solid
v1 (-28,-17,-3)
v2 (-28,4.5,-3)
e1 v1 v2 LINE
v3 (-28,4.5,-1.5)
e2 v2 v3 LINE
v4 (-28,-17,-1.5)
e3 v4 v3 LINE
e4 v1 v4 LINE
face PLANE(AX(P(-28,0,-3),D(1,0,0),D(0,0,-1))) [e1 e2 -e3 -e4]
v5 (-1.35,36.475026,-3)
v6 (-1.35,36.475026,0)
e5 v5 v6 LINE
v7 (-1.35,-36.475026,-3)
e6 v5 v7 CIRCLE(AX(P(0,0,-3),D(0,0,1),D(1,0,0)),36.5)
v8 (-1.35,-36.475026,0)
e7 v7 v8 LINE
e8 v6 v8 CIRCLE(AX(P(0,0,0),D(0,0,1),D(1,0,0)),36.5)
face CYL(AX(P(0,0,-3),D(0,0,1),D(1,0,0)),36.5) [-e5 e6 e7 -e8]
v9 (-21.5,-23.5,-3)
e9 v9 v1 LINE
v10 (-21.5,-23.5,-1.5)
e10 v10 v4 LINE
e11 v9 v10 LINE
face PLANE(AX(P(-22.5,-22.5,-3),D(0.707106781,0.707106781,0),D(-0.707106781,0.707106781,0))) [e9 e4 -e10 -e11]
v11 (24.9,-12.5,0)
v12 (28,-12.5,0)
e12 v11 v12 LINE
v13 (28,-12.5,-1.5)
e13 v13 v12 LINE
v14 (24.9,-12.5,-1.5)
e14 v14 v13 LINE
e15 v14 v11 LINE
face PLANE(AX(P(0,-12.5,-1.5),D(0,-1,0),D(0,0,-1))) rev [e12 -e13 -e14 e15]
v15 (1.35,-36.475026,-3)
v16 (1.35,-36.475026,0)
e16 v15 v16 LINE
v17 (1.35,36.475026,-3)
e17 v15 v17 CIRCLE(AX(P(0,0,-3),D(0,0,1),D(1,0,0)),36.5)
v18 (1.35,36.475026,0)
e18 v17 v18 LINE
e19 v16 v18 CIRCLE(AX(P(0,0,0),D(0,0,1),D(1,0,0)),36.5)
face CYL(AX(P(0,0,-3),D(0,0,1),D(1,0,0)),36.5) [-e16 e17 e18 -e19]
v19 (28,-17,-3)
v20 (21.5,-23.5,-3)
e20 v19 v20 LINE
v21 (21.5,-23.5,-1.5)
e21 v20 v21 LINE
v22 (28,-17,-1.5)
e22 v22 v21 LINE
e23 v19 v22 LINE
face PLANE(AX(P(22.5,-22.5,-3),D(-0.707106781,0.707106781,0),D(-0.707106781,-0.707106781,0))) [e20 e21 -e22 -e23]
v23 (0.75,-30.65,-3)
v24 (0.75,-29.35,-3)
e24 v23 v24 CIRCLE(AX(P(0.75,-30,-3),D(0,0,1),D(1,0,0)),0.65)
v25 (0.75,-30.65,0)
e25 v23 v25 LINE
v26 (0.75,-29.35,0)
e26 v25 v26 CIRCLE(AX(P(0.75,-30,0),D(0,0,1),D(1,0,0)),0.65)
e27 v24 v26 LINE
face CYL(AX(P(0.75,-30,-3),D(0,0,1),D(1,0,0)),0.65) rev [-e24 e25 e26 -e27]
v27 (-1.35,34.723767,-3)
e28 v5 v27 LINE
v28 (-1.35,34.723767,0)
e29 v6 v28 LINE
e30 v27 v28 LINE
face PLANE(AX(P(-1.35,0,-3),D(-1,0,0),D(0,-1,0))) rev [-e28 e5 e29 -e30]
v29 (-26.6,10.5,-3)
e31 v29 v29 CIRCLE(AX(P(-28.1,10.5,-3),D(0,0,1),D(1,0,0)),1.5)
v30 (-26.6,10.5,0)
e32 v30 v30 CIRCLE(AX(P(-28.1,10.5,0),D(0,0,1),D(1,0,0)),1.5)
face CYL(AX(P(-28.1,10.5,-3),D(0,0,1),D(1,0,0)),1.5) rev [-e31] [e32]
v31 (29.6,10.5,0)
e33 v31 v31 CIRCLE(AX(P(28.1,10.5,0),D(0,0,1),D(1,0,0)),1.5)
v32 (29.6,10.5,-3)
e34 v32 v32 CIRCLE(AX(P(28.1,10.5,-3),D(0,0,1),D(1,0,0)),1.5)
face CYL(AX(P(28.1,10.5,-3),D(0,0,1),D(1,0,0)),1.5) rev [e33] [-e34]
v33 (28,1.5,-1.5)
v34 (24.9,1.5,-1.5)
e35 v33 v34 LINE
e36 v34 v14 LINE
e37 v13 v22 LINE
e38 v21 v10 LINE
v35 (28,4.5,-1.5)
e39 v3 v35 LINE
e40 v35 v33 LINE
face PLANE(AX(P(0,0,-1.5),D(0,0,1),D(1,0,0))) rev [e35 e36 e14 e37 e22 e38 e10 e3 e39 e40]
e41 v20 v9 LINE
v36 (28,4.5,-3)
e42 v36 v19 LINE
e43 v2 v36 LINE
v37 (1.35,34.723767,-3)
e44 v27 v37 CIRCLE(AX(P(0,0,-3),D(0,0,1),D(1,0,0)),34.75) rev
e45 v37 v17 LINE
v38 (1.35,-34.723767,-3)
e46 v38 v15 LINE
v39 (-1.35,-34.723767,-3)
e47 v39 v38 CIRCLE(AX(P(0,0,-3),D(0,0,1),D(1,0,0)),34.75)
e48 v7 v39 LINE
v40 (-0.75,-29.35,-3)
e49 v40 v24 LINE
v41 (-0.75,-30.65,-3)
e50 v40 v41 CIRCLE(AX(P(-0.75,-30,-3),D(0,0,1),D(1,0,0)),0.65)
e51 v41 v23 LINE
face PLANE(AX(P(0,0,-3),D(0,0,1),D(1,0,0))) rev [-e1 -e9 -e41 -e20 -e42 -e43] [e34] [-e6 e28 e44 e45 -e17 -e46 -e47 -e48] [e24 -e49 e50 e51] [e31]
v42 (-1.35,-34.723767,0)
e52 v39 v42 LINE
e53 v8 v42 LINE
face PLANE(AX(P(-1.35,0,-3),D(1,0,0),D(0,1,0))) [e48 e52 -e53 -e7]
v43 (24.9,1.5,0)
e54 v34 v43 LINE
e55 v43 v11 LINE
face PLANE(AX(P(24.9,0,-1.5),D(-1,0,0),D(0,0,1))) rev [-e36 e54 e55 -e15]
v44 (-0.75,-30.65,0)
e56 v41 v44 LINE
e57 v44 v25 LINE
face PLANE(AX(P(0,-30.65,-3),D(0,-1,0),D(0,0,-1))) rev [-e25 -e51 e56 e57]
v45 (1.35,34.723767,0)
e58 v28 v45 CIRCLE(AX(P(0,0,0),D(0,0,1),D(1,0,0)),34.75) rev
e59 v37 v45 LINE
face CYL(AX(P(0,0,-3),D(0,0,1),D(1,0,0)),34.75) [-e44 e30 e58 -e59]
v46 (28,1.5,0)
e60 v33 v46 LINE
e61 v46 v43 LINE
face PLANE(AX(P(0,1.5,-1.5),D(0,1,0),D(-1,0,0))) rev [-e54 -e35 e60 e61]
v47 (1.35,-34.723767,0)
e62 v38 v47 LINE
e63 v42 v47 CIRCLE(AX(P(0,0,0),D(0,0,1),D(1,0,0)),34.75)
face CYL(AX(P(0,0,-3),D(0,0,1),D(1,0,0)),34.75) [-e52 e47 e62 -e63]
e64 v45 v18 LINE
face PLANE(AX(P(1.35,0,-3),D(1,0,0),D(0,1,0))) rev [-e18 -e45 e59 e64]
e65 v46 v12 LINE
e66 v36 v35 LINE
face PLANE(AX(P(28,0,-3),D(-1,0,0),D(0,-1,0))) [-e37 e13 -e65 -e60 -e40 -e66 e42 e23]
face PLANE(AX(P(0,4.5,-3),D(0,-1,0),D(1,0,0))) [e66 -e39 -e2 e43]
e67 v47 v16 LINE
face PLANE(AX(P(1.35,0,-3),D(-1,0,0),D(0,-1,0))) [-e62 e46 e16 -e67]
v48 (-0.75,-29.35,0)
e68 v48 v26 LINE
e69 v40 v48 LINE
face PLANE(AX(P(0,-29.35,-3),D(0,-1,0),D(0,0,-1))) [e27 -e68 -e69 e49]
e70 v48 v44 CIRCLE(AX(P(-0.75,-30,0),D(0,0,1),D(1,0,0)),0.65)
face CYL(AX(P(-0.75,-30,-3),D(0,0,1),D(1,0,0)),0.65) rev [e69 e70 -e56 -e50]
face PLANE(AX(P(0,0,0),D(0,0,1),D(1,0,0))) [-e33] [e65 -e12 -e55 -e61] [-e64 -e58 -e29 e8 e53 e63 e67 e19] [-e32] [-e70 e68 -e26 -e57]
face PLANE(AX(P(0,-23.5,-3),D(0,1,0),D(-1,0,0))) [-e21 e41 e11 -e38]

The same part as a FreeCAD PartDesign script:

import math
import FreeCAD as App
import Part
import Sketcher

V = App.Vector

doc = App.newDocument("Part")
body = doc.addObject("PartDesign::Body", "Body")

sketch1 = doc.addObject("Sketcher::SketchObject", "Sketch")
body.addObject(sketch1)
sketch1.AttachmentSupport = (doc.XY_Plane, [""])
sketch1.MapMode = "FlatFace"
sketch1.addGeometry(Part.LineSegment(V(-1.35, 34.723767, 0), V(-1.35, 36.475026, 0)), False)
sketch1.addGeometry(Part.ArcOfCircle(Part.Circle(V(0, 0, 0), V(0, 0, 1), 36.5), math.radians(92.119642), math.radians(267.880358)), False)
sketch1.addGeometry(Part.LineSegment(V(-1.35, -36.475026, 0), V(-1.35, -34.723767, 0)), False)
sketch1.addGeometry(Part.ArcOfCircle(Part.Circle(V(0, 0, 0), V(0, 0, 1), 34.75), math.radians(-92.226439), math.radians(-87.773561)), False)
sketch1.addGeometry(Part.LineSegment(V(1.35, -34.723767, 0), V(1.35, -36.475026, 0)), False)
sketch1.addGeometry(Part.ArcOfCircle(Part.Circle(V(0, 0, 0), V(0, 0, 1), 36.5), math.radians(-87.880358), math.radians(87.880358)), False)
sketch1.addGeometry(Part.LineSegment(V(1.35, 36.475026, 0), V(1.35, 34.723767, 0)), False)
sketch1.addGeometry(Part.ArcOfCircle(Part.Circle(V(0, 0, 0), V(0, 0, 1), 34.75), math.radians(87.773561), math.radians(92.226439)), False)
sketch1.addGeometry(Part.LineSegment(V(-0.75, -29.35, 0), V(0.75, -29.35, 0)), False)
sketch1.addGeometry(Part.ArcOfCircle(Part.Circle(V(0.75, -30, 0), V(0, 0, 1), 0.65), math.radians(-90), math.radians(90)), False)
sketch1.addGeometry(Part.LineSegment(V(0.75, -30.65, 0), V(-0.75, -30.65, 0)), False)
sketch1.addGeometry(Part.ArcOfCircle(Part.Circle(V(-0.75, -30, 0), V(0, 0, 1), 0.65), math.radians(90), math.radians(270)), False)
sketch1.addGeometry(Part.LineSegment(V(-28, 4.5, 0), V(28, 4.5, 0)), False)
sketch1.addGeometry(Part.LineSegment(V(28, 4.5, 0), V(28, -17, 0)), False)
sketch1.addGeometry(Part.LineSegment(V(28, -17, 0), V(21.5, -23.5, 0)), False)
sketch1.addGeometry(Part.LineSegment(V(21.5, -23.5, 0), V(-21.5, -23.5, 0)), False)
sketch1.addGeometry(Part.LineSegment(V(-21.5, -23.5, 0), V(-28, -17, 0)), False)
sketch1.addGeometry(Part.LineSegment(V(-28, -17, 0), V(-28, 4.5, 0)), False)
sketch1.addGeometry(Part.Circle(V(28.1, 10.5, 0), V(0, 0, 1), 1.5), False)
sketch1.addGeometry(Part.Circle(V(-28.1, 10.5, 0), V(0, 0, 1), 1.5), False)
sketch1.addConstraint(Sketcher.Constraint("Coincident", 0, 2, 1, 1))
sketch1.addConstraint(Sketcher.Constraint("Coincident", 1, 2, 2, 1))
sketch1.addConstraint(Sketcher.Constraint("Coincident", 2, 2, 3, 1))
sketch1.addConstraint(Sketcher.Constraint("Coincident", 3, 2, 4, 1))
sketch1.addConstraint(Sketcher.Constraint("Coincident", 4, 2, 5, 1))
sketch1.addConstraint(Sketcher.Constraint("Coincident", 5, 2, 6, 1))
sketch1.addConstraint(Sketcher.Constraint("Coincident", 6, 2, 7, 1))
sketch1.addConstraint(Sketcher.Constraint("Coincident", 7, 2, 0, 1))
sketch1.addConstraint(Sketcher.Constraint("Tangent", 8, 2, 9, 2))
sketch1.addConstraint(Sketcher.Constraint("Tangent", 9, 1, 10, 1))
sketch1.addConstraint(Sketcher.Constraint("Tangent", 10, 2, 11, 2))
sketch1.addConstraint(Sketcher.Constraint("Tangent", 11, 1, 8, 1))
sketch1.addConstraint(Sketcher.Constraint("Coincident", 12, 2, 13, 1))
sketch1.addConstraint(Sketcher.Constraint("Coincident", 13, 2, 14, 1))
sketch1.addConstraint(Sketcher.Constraint("Coincident", 14, 2, 15, 1))
sketch1.addConstraint(Sketcher.Constraint("Coincident", 15, 2, 16, 1))
sketch1.addConstraint(Sketcher.Constraint("Coincident", 16, 2, 17, 1))
sketch1.addConstraint(Sketcher.Constraint("Coincident", 17, 2, 12, 1))
sketch1.addConstraint(Sketcher.Constraint("Vertical", 0))
sketch1.addConstraint(Sketcher.Constraint("Vertical", 2))
sketch1.addConstraint(Sketcher.Constraint("Vertical", 4))
sketch1.addConstraint(Sketcher.Constraint("Vertical", 6))
sketch1.addConstraint(Sketcher.Constraint("Horizontal", 8))
sketch1.addConstraint(Sketcher.Constraint("Horizontal", 10))
sketch1.addConstraint(Sketcher.Constraint("Horizontal", 12))
sketch1.addConstraint(Sketcher.Constraint("Vertical", 13))
sketch1.addConstraint(Sketcher.Constraint("Horizontal", 15))
sketch1.addConstraint(Sketcher.Constraint("Vertical", 17))
sketch1.addConstraint(Sketcher.Constraint("Coincident", 1, 3, -1, 1))
sketch1.addConstraint(Sketcher.Constraint("Coincident", 3, 3, -1, 1))
sketch1.addConstraint(Sketcher.Constraint("Coincident", 5, 3, -1, 1))
sketch1.addConstraint(Sketcher.Constraint("Coincident", 7, 3, -1, 1))
sketch1.addConstraint(Sketcher.Constraint("Equal", 1, 5))
sketch1.addConstraint(Sketcher.Constraint("Equal", 3, 7))
sketch1.addConstraint(Sketcher.Constraint("Equal", 18, 19))
sketch1.addConstraint(Sketcher.Constraint("Symmetric", 18, 3, 19, 3, -2))
sketch1.addConstraint(Sketcher.Constraint("Symmetric", 13, 2, 16, 2, -2))
sketch1.addConstraint(Sketcher.Constraint("Perpendicular", 14, 16))
sketch1.addConstraint(Sketcher.Constraint("Horizontal", 2, 2, 3, 2))
sketch1.addConstraint(Sketcher.Constraint("Horizontal", 0, 2, 5, 2))
sketch1.addConstraint(Sketcher.Constraint("Vertical", 0, 2, 1, 2))
sketch1.addConstraint(Sketcher.Constraint("Equal", 14, 16))
sketch1.addConstraint(Sketcher.Constraint("Diameter", 18, 3.0))
sketch1.addConstraint(Sketcher.Constraint("Radius", 1, 36.5))
sketch1.addConstraint(Sketcher.Constraint("DistanceX", 12, 1, 12, 2, 56.0))
sketch1.addConstraint(Sketcher.Constraint("DistanceX", 15, 2, 15, 1, 43.0))
sketch1.addConstraint(Sketcher.Constraint("Radius", 3, 34.75))
sketch1.addConstraint(Sketcher.Constraint("Radius", 9, 0.65))
sketch1.addConstraint(Sketcher.Constraint("DistanceX", 8, 1, 8, 2, 1.5))
sketch1.addConstraint(Sketcher.Constraint("DistanceY", 13, 2, 13, 1, 21.5))
sketch1.addConstraint(Sketcher.Constraint("DistanceY", 9, 3, -1, 1, 30.0))
sketch1.addConstraint(Sketcher.Constraint("DistanceY", 13, 2, -1, 1, 17.0))
sketch1.addConstraint(Sketcher.Constraint("DistanceY", 12, 2, 18, 3, 6.0))
sketch1.addConstraint(Sketcher.Constraint("DistanceX", -1, 1, 18, 3, 28.1))
sketch1.addConstraint(Sketcher.Constraint("DistanceX", 1, 2, 11, 3, 0.6))
sketch1.addConstraint(Sketcher.Constraint("DistanceX", 2, 2, 3, 2, 2.7))
pad1 = doc.addObject("PartDesign::Pad", "Pad")
body.addObject(pad1)
pad1.Profile = sketch1
pad1.Length = 3
pad1.Reversed = True

sketch2 = doc.addObject("Sketcher::SketchObject", "Sketch001")
body.addObject(sketch2)
sketch2.AttachmentSupport = (doc.XY_Plane, [""])
sketch2.MapMode = "FlatFace"
sketch2.addGeometry(Part.LineSegment(V(28, 4.5, 0), V(-28, 4.5, 0)), False)
sketch2.addGeometry(Part.LineSegment(V(-28, 4.5, 0), V(-28, -17, 0)), False)
sketch2.addGeometry(Part.LineSegment(V(-28, -17, 0), V(-21.5, -23.5, 0)), False)
sketch2.addGeometry(Part.LineSegment(V(-21.5, -23.5, 0), V(21.5, -23.5, 0)), False)
sketch2.addGeometry(Part.LineSegment(V(21.5, -23.5, 0), V(28, -17, 0)), False)
sketch2.addGeometry(Part.LineSegment(V(28, -17, 0), V(28, -12.5, 0)), False)
sketch2.addGeometry(Part.LineSegment(V(28, -12.5, 0), V(24.9, -12.5, 0)), False)
sketch2.addGeometry(Part.LineSegment(V(24.9, -12.5, 0), V(24.9, 1.5, 0)), False)
sketch2.addGeometry(Part.LineSegment(V(24.9, 1.5, 0), V(28, 1.5, 0)), False)
sketch2.addGeometry(Part.LineSegment(V(28, 1.5, 0), V(28, 4.5, 0)), False)
sketch2.addConstraint(Sketcher.Constraint("Coincident", 0, 2, 1, 1))
sketch2.addConstraint(Sketcher.Constraint("Coincident", 1, 2, 2, 1))
sketch2.addConstraint(Sketcher.Constraint("Coincident", 2, 2, 3, 1))
sketch2.addConstraint(Sketcher.Constraint("Coincident", 3, 2, 4, 1))
sketch2.addConstraint(Sketcher.Constraint("Coincident", 4, 2, 5, 1))
sketch2.addConstraint(Sketcher.Constraint("Coincident", 5, 2, 6, 1))
sketch2.addConstraint(Sketcher.Constraint("Coincident", 6, 2, 7, 1))
sketch2.addConstraint(Sketcher.Constraint("Coincident", 7, 2, 8, 1))
sketch2.addConstraint(Sketcher.Constraint("Coincident", 8, 2, 9, 1))
sketch2.addConstraint(Sketcher.Constraint("Coincident", 9, 2, 0, 1))
sketch2.addConstraint(Sketcher.Constraint("Horizontal", 0))
sketch2.addConstraint(Sketcher.Constraint("Vertical", 1))
sketch2.addConstraint(Sketcher.Constraint("Horizontal", 3))
sketch2.addConstraint(Sketcher.Constraint("Vertical", 5))
sketch2.addConstraint(Sketcher.Constraint("Horizontal", 6))
sketch2.addConstraint(Sketcher.Constraint("Vertical", 7))
sketch2.addConstraint(Sketcher.Constraint("Horizontal", 8))
sketch2.addConstraint(Sketcher.Constraint("Vertical", 9))
sketch2.addConstraint(Sketcher.Constraint("Symmetric", 1, 2, 4, 2, -2))
sketch2.addConstraint(Sketcher.Constraint("Perpendicular", 2, 4))
sketch2.addConstraint(Sketcher.Constraint("Vertical", 5, 2, 8, 2))
sketch2.addConstraint(Sketcher.Constraint("Equal", 2, 4))
sketch2.addConstraint(Sketcher.Constraint("DistanceX", 0, 2, 0, 1, 56.0))
sketch2.addConstraint(Sketcher.Constraint("DistanceX", 3, 1, 3, 2, 43.0))
sketch2.addConstraint(Sketcher.Constraint("DistanceY", 7, 1, 7, 2, 14.0))
sketch2.addConstraint(Sketcher.Constraint("DistanceY", 9, 1, 9, 2, 3.0))
sketch2.addConstraint(Sketcher.Constraint("DistanceX", 6, 2, 6, 1, 3.1))
sketch2.addConstraint(Sketcher.Constraint("DistanceY", 1, 2, 1, 1, 21.5))
sketch2.addConstraint(Sketcher.Constraint("DistanceY", 1, 2, -1, 1, 17.0))
pad2 = doc.addObject("PartDesign::Pad", "Pad001")
body.addObject(pad2)
pad2.Profile = sketch2
pad2.Length = 1.5
pad2.Reversed = True

doc.recompute()
